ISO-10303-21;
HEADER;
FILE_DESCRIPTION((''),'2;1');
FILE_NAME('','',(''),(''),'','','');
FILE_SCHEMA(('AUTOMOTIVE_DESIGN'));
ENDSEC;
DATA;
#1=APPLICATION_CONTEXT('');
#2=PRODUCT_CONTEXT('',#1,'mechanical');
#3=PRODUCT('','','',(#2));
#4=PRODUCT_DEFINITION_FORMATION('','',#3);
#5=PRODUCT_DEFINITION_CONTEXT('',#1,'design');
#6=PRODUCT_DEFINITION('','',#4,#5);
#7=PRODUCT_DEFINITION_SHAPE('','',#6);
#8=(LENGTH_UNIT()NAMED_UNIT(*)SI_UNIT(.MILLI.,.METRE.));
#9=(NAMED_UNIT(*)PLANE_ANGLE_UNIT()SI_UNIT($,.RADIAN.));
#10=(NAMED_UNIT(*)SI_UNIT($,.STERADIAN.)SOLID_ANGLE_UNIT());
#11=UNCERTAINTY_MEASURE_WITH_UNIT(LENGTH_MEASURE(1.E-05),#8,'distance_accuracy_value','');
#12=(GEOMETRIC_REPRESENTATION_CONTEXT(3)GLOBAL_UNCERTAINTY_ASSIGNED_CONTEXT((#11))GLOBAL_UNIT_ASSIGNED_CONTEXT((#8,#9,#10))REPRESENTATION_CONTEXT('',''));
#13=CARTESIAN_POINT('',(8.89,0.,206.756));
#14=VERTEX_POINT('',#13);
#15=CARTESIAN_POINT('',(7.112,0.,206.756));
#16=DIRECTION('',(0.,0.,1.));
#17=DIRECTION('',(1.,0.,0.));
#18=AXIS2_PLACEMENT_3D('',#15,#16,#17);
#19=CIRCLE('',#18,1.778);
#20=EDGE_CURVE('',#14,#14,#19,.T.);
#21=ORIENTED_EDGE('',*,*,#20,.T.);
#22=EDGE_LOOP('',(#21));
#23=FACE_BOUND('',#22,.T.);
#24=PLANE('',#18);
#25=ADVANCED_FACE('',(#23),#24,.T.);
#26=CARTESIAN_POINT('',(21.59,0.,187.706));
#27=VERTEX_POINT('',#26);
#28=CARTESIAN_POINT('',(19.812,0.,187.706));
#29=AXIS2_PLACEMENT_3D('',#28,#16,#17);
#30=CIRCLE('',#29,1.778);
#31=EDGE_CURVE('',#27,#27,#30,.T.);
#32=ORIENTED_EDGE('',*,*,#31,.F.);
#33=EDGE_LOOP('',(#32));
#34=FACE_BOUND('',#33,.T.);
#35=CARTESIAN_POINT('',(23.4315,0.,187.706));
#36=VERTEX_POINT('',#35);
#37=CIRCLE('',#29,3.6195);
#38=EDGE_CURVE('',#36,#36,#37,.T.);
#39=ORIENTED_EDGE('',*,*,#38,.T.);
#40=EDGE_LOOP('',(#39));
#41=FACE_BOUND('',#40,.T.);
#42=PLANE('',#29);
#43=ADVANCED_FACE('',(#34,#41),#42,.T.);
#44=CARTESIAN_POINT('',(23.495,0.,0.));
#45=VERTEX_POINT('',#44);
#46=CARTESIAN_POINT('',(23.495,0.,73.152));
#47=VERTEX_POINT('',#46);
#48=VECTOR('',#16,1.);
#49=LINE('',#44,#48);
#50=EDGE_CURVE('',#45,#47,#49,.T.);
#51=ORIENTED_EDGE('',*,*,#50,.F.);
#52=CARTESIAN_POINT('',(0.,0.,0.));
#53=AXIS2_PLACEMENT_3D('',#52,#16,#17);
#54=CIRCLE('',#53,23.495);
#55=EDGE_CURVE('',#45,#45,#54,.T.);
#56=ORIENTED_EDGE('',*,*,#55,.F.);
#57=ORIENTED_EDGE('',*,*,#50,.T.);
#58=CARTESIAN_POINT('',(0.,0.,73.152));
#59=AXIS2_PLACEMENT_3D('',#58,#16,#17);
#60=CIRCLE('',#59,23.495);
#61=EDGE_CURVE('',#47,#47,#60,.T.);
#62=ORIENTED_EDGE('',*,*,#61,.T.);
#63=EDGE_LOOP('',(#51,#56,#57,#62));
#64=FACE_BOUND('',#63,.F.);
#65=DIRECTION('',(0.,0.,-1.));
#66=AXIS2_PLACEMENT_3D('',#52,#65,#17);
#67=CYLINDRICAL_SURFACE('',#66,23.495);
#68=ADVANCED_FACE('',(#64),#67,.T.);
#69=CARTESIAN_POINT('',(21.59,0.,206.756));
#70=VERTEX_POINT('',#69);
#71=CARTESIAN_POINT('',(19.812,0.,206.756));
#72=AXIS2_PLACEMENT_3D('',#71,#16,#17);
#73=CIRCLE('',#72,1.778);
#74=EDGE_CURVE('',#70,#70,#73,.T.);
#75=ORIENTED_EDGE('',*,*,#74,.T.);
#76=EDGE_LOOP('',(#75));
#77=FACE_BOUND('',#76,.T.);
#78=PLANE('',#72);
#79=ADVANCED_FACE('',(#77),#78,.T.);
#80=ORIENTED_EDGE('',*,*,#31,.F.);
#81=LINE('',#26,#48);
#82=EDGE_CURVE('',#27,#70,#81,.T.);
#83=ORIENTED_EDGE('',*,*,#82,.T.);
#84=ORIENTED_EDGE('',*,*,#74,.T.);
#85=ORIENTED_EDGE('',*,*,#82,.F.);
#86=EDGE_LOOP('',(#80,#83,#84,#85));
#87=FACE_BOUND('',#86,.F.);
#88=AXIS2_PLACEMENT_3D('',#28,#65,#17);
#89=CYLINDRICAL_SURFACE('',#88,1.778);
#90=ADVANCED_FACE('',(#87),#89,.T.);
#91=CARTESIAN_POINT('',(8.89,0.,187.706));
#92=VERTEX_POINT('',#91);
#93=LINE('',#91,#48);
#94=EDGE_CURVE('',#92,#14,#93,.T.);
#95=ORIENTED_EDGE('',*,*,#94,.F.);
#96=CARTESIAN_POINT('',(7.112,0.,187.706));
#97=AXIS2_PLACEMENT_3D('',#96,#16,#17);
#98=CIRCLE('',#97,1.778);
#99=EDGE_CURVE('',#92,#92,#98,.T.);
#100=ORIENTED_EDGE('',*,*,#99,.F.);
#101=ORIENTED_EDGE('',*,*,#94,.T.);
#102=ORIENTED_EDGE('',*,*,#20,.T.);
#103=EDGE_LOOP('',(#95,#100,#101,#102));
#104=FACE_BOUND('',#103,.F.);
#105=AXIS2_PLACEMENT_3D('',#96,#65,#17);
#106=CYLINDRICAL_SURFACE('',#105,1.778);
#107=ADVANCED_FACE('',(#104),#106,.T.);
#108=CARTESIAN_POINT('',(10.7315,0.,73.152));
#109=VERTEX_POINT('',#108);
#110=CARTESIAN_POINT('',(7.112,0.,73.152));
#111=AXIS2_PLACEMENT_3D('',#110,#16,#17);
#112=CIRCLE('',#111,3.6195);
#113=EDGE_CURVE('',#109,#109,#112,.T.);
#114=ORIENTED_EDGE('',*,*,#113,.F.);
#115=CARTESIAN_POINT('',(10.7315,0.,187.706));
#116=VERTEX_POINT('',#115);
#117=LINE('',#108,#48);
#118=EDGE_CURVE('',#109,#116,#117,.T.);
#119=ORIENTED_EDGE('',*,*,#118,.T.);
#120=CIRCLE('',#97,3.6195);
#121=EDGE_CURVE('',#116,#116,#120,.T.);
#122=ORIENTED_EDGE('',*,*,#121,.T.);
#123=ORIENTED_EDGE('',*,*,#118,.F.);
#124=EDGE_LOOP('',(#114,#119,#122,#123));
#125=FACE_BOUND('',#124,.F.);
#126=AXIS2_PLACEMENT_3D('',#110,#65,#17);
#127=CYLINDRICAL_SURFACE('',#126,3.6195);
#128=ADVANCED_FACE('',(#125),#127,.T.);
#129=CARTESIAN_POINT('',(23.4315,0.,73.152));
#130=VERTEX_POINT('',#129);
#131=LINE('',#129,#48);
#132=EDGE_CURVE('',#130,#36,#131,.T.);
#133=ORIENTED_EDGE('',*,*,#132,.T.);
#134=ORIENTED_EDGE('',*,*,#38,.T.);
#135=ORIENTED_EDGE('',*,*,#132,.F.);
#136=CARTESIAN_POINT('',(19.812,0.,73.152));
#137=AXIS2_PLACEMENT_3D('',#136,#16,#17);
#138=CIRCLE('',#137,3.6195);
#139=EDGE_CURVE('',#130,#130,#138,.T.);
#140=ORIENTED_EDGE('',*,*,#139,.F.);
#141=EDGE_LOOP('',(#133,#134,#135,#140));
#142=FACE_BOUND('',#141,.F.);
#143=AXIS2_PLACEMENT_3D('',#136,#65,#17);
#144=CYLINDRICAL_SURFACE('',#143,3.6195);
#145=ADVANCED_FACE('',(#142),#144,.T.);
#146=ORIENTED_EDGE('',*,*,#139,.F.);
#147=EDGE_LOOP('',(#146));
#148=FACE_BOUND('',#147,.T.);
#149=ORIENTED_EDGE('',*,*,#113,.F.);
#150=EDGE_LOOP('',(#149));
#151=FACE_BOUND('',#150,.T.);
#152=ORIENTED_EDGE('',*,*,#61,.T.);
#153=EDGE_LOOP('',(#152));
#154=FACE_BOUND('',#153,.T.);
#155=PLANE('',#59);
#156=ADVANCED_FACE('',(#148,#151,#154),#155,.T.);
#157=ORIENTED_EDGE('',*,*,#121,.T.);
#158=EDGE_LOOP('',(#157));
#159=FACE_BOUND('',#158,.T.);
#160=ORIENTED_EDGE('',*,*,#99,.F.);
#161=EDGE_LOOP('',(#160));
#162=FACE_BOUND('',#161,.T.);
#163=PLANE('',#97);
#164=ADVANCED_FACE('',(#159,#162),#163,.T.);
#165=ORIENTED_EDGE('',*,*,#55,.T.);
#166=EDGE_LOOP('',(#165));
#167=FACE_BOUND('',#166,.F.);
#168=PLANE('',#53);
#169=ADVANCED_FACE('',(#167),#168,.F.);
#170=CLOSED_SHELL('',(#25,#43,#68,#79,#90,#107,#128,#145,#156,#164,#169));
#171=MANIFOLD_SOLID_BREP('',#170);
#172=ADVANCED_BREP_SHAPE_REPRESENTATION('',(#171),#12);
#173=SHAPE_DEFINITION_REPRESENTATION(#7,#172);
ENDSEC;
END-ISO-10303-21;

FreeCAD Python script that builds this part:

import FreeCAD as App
import Part
import Sketcher
Q = App.Units.Quantity

doc = App.newDocument("Part")
body = doc.addObject("PartDesign::Body", "Body")

# Sketch on XY plane
sketch1 = body.newObject("Sketcher::SketchObject", "Sketch")
sketch1.AttachmentSupport = (doc.getObject("XY_Plane"), [""])
sketch1.MapMode = "FlatFace"
sketch1.addGeometry(Part.Circle(App.Vector(0, 0, 0), App.Vector(0, 0, 1), 23.495), False)
sketch1.addConstraint([
    Sketcher.Constraint("Coincident", 0, 3, -1, 1),
    Sketcher.Constraint("Diameter", 0, Q("1.85 in")),
])
pad1 = body.newObject("PartDesign::Pad", "Pad")
pad1.Profile = sketch1
pad1.Length = Q("2.88 in")

# Sketch on XY plane
sketch2 = body.newObject("Sketcher::SketchObject", "Sketch001")
sketch2.AttachmentSupport = (doc.getObject("XY_Plane"), [""])
sketch2.MapMode = "FlatFace"
sketch2.AttachmentOffset = App.Placement(App.Vector(0, 0, 2.88 * 25.4), App.Rotation())
sketch2.addGeometry([
    Part.Circle(App.Vector(19.812, 0, 0), App.Vector(0, 0, 1), 3.6195),
    Part.Circle(App.Vector(7.112, 0, 0), App.Vector(0, 0, 1), 3.6195),
], False)
sketch2.addConstraint([
    Sketcher.Constraint("Equal", 0, 1),
    Sketcher.Constraint("PointOnObject", 0, 3, -1),
    Sketcher.Constraint("PointOnObject", 1, 3, -1),
    Sketcher.Constraint("Diameter", 0, Q("0.285 in")),
    Sketcher.Constraint("DistanceX", 1, 3, 0, 3, Q("0.5 in")),
    Sketcher.Constraint("DistanceX", -1, 1, 0, 3, Q("0.78 in")),
])
pad2 = body.newObject("PartDesign::Pad", "Pad001")
pad2.Profile = sketch2
pad2.Length = Q("4.51 in")

# Sketch on XY plane
sketch3 = body.newObject("Sketcher::SketchObject", "Sketch002")
sketch3.AttachmentSupport = (doc.getObject("XY_Plane"), [""])
sketch3.MapMode = "FlatFace"
sketch3.AttachmentOffset = App.Placement(App.Vector(0, 0, 7.39 * 25.4), App.Rotation())
sketch3.addGeometry([
    Part.Circle(App.Vector(7.112, 0, 0), App.Vector(0, 0, 1), 1.778),
    Part.Circle(App.Vector(19.812, 0, 0), App.Vector(0, 0, 1), 1.778),
], False)
sketch3.addConstraint([
    Sketcher.Constraint("Equal", 0, 1),
    Sketcher.Constraint("PointOnObject", 0, 3, -1),
    Sketcher.Constraint("PointOnObject", 1, 3, -1),
    Sketcher.Constraint("Diameter", 0, Q("0.14 in")),
    Sketcher.Constraint("DistanceX", 0, 3, 1, 3, Q("0.5 in")),
    Sketcher.Constraint("DistanceX", -1, 1, 0, 3, Q("0.28 in")),
])
pad3 = body.newObject("PartDesign::Pad", "Pad002")
pad3.Profile = sketch3
pad3.Length = Q("0.75 in")

doc.recompute()
